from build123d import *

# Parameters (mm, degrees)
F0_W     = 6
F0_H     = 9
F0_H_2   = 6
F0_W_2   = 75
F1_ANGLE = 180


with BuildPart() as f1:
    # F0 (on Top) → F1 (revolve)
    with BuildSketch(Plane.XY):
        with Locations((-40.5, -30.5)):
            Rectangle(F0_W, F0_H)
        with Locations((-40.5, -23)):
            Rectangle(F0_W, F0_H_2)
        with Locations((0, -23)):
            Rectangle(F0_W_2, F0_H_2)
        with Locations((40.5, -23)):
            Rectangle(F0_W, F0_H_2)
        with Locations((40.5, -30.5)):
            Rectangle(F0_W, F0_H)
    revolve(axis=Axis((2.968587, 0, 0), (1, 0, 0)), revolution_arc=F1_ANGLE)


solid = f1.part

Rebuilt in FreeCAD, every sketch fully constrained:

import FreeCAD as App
import Part
import Sketcher

V = App.Vector
Q = App.Units.Quantity

doc = App.newDocument("Part")
body = doc.addObject("PartDesign::Body", "Body")

sketch1 = body.newObject("Sketcher::SketchObject", "Sketch")
sketch1.AttachmentSupport = (doc.getObject("XY_Plane"), [""])
sketch1.MapMode = "FlatFace"
sketch1.addGeometry([
    Part.LineSegment(V(-44, -35, 0), V(-38, -35, 0)),
    Part.LineSegment(V(-38, -35, 0), V(-38, -26, 0)),
    Part.LineSegment(V(-38, -26, 0), V(38, -26, 0)),
    Part.LineSegment(V(38, -26, 0), V(38, -35, 0)),
    Part.LineSegment(V(38, -35, 0), V(44, -35, 0)),
    Part.LineSegment(V(44, -35, 0), V(44, -20, 0)),
    Part.LineSegment(V(44, -20, 0), V(-44, -20, 0)),
    Part.LineSegment(V(-44, -20, 0), V(-44, -35, 0)),
], False)
sketch1.addConstraint([
    Sketcher.Constraint("Coincident", 0, 2, 1, 1),
    Sketcher.Constraint("Coincident", 1, 2, 2, 1),
    Sketcher.Constraint("Coincident", 2, 2, 3, 1),
    Sketcher.Constraint("Coincident", 3, 2, 4, 1),
    Sketcher.Constraint("Coincident", 4, 2, 5, 1),
    Sketcher.Constraint("Coincident", 5, 2, 6, 1),
    Sketcher.Constraint("Coincident", 6, 2, 7, 1),
    Sketcher.Constraint("Coincident", 7, 2, 0, 1),
    Sketcher.Constraint("Horizontal", 0),
    Sketcher.Constraint("Vertical", 1),
    Sketcher.Constraint("Horizontal", 2),
    Sketcher.Constraint("Vertical", 3),
    Sketcher.Constraint("Horizontal", 4),
    Sketcher.Constraint("Vertical", 5),
    Sketcher.Constraint("Horizontal", 6),
    Sketcher.Constraint("Vertical", 7),
    Sketcher.Constraint("Symmetric", 0, 2, 3, 2, -2),
    Sketcher.Constraint("Equal", 0, 4),
    Sketcher.Constraint("DistanceX", 0, 1, 0, 2, Q("6 mm")),
    Sketcher.Constraint("DistanceX", 2, 1, 2, 2, Q("75 mm")),
    Sketcher.Constraint("DistanceY", 1, 1, 1, 2, Q("9 mm")),
    Sketcher.Constraint("DistanceY", 5, 1, 5, 2, Q("15 mm")),
    Sketcher.Constraint("DistanceY", 0, 2, -1, 1, Q("35 mm")),
])
revolution = body.newObject("PartDesign::Revolution", "Revolution")
revolution.Profile = sketch1
revolution.ReferenceAxis = (sketch1, ["H_Axis"])
revolution.Angle = 180

doc.recompute()
